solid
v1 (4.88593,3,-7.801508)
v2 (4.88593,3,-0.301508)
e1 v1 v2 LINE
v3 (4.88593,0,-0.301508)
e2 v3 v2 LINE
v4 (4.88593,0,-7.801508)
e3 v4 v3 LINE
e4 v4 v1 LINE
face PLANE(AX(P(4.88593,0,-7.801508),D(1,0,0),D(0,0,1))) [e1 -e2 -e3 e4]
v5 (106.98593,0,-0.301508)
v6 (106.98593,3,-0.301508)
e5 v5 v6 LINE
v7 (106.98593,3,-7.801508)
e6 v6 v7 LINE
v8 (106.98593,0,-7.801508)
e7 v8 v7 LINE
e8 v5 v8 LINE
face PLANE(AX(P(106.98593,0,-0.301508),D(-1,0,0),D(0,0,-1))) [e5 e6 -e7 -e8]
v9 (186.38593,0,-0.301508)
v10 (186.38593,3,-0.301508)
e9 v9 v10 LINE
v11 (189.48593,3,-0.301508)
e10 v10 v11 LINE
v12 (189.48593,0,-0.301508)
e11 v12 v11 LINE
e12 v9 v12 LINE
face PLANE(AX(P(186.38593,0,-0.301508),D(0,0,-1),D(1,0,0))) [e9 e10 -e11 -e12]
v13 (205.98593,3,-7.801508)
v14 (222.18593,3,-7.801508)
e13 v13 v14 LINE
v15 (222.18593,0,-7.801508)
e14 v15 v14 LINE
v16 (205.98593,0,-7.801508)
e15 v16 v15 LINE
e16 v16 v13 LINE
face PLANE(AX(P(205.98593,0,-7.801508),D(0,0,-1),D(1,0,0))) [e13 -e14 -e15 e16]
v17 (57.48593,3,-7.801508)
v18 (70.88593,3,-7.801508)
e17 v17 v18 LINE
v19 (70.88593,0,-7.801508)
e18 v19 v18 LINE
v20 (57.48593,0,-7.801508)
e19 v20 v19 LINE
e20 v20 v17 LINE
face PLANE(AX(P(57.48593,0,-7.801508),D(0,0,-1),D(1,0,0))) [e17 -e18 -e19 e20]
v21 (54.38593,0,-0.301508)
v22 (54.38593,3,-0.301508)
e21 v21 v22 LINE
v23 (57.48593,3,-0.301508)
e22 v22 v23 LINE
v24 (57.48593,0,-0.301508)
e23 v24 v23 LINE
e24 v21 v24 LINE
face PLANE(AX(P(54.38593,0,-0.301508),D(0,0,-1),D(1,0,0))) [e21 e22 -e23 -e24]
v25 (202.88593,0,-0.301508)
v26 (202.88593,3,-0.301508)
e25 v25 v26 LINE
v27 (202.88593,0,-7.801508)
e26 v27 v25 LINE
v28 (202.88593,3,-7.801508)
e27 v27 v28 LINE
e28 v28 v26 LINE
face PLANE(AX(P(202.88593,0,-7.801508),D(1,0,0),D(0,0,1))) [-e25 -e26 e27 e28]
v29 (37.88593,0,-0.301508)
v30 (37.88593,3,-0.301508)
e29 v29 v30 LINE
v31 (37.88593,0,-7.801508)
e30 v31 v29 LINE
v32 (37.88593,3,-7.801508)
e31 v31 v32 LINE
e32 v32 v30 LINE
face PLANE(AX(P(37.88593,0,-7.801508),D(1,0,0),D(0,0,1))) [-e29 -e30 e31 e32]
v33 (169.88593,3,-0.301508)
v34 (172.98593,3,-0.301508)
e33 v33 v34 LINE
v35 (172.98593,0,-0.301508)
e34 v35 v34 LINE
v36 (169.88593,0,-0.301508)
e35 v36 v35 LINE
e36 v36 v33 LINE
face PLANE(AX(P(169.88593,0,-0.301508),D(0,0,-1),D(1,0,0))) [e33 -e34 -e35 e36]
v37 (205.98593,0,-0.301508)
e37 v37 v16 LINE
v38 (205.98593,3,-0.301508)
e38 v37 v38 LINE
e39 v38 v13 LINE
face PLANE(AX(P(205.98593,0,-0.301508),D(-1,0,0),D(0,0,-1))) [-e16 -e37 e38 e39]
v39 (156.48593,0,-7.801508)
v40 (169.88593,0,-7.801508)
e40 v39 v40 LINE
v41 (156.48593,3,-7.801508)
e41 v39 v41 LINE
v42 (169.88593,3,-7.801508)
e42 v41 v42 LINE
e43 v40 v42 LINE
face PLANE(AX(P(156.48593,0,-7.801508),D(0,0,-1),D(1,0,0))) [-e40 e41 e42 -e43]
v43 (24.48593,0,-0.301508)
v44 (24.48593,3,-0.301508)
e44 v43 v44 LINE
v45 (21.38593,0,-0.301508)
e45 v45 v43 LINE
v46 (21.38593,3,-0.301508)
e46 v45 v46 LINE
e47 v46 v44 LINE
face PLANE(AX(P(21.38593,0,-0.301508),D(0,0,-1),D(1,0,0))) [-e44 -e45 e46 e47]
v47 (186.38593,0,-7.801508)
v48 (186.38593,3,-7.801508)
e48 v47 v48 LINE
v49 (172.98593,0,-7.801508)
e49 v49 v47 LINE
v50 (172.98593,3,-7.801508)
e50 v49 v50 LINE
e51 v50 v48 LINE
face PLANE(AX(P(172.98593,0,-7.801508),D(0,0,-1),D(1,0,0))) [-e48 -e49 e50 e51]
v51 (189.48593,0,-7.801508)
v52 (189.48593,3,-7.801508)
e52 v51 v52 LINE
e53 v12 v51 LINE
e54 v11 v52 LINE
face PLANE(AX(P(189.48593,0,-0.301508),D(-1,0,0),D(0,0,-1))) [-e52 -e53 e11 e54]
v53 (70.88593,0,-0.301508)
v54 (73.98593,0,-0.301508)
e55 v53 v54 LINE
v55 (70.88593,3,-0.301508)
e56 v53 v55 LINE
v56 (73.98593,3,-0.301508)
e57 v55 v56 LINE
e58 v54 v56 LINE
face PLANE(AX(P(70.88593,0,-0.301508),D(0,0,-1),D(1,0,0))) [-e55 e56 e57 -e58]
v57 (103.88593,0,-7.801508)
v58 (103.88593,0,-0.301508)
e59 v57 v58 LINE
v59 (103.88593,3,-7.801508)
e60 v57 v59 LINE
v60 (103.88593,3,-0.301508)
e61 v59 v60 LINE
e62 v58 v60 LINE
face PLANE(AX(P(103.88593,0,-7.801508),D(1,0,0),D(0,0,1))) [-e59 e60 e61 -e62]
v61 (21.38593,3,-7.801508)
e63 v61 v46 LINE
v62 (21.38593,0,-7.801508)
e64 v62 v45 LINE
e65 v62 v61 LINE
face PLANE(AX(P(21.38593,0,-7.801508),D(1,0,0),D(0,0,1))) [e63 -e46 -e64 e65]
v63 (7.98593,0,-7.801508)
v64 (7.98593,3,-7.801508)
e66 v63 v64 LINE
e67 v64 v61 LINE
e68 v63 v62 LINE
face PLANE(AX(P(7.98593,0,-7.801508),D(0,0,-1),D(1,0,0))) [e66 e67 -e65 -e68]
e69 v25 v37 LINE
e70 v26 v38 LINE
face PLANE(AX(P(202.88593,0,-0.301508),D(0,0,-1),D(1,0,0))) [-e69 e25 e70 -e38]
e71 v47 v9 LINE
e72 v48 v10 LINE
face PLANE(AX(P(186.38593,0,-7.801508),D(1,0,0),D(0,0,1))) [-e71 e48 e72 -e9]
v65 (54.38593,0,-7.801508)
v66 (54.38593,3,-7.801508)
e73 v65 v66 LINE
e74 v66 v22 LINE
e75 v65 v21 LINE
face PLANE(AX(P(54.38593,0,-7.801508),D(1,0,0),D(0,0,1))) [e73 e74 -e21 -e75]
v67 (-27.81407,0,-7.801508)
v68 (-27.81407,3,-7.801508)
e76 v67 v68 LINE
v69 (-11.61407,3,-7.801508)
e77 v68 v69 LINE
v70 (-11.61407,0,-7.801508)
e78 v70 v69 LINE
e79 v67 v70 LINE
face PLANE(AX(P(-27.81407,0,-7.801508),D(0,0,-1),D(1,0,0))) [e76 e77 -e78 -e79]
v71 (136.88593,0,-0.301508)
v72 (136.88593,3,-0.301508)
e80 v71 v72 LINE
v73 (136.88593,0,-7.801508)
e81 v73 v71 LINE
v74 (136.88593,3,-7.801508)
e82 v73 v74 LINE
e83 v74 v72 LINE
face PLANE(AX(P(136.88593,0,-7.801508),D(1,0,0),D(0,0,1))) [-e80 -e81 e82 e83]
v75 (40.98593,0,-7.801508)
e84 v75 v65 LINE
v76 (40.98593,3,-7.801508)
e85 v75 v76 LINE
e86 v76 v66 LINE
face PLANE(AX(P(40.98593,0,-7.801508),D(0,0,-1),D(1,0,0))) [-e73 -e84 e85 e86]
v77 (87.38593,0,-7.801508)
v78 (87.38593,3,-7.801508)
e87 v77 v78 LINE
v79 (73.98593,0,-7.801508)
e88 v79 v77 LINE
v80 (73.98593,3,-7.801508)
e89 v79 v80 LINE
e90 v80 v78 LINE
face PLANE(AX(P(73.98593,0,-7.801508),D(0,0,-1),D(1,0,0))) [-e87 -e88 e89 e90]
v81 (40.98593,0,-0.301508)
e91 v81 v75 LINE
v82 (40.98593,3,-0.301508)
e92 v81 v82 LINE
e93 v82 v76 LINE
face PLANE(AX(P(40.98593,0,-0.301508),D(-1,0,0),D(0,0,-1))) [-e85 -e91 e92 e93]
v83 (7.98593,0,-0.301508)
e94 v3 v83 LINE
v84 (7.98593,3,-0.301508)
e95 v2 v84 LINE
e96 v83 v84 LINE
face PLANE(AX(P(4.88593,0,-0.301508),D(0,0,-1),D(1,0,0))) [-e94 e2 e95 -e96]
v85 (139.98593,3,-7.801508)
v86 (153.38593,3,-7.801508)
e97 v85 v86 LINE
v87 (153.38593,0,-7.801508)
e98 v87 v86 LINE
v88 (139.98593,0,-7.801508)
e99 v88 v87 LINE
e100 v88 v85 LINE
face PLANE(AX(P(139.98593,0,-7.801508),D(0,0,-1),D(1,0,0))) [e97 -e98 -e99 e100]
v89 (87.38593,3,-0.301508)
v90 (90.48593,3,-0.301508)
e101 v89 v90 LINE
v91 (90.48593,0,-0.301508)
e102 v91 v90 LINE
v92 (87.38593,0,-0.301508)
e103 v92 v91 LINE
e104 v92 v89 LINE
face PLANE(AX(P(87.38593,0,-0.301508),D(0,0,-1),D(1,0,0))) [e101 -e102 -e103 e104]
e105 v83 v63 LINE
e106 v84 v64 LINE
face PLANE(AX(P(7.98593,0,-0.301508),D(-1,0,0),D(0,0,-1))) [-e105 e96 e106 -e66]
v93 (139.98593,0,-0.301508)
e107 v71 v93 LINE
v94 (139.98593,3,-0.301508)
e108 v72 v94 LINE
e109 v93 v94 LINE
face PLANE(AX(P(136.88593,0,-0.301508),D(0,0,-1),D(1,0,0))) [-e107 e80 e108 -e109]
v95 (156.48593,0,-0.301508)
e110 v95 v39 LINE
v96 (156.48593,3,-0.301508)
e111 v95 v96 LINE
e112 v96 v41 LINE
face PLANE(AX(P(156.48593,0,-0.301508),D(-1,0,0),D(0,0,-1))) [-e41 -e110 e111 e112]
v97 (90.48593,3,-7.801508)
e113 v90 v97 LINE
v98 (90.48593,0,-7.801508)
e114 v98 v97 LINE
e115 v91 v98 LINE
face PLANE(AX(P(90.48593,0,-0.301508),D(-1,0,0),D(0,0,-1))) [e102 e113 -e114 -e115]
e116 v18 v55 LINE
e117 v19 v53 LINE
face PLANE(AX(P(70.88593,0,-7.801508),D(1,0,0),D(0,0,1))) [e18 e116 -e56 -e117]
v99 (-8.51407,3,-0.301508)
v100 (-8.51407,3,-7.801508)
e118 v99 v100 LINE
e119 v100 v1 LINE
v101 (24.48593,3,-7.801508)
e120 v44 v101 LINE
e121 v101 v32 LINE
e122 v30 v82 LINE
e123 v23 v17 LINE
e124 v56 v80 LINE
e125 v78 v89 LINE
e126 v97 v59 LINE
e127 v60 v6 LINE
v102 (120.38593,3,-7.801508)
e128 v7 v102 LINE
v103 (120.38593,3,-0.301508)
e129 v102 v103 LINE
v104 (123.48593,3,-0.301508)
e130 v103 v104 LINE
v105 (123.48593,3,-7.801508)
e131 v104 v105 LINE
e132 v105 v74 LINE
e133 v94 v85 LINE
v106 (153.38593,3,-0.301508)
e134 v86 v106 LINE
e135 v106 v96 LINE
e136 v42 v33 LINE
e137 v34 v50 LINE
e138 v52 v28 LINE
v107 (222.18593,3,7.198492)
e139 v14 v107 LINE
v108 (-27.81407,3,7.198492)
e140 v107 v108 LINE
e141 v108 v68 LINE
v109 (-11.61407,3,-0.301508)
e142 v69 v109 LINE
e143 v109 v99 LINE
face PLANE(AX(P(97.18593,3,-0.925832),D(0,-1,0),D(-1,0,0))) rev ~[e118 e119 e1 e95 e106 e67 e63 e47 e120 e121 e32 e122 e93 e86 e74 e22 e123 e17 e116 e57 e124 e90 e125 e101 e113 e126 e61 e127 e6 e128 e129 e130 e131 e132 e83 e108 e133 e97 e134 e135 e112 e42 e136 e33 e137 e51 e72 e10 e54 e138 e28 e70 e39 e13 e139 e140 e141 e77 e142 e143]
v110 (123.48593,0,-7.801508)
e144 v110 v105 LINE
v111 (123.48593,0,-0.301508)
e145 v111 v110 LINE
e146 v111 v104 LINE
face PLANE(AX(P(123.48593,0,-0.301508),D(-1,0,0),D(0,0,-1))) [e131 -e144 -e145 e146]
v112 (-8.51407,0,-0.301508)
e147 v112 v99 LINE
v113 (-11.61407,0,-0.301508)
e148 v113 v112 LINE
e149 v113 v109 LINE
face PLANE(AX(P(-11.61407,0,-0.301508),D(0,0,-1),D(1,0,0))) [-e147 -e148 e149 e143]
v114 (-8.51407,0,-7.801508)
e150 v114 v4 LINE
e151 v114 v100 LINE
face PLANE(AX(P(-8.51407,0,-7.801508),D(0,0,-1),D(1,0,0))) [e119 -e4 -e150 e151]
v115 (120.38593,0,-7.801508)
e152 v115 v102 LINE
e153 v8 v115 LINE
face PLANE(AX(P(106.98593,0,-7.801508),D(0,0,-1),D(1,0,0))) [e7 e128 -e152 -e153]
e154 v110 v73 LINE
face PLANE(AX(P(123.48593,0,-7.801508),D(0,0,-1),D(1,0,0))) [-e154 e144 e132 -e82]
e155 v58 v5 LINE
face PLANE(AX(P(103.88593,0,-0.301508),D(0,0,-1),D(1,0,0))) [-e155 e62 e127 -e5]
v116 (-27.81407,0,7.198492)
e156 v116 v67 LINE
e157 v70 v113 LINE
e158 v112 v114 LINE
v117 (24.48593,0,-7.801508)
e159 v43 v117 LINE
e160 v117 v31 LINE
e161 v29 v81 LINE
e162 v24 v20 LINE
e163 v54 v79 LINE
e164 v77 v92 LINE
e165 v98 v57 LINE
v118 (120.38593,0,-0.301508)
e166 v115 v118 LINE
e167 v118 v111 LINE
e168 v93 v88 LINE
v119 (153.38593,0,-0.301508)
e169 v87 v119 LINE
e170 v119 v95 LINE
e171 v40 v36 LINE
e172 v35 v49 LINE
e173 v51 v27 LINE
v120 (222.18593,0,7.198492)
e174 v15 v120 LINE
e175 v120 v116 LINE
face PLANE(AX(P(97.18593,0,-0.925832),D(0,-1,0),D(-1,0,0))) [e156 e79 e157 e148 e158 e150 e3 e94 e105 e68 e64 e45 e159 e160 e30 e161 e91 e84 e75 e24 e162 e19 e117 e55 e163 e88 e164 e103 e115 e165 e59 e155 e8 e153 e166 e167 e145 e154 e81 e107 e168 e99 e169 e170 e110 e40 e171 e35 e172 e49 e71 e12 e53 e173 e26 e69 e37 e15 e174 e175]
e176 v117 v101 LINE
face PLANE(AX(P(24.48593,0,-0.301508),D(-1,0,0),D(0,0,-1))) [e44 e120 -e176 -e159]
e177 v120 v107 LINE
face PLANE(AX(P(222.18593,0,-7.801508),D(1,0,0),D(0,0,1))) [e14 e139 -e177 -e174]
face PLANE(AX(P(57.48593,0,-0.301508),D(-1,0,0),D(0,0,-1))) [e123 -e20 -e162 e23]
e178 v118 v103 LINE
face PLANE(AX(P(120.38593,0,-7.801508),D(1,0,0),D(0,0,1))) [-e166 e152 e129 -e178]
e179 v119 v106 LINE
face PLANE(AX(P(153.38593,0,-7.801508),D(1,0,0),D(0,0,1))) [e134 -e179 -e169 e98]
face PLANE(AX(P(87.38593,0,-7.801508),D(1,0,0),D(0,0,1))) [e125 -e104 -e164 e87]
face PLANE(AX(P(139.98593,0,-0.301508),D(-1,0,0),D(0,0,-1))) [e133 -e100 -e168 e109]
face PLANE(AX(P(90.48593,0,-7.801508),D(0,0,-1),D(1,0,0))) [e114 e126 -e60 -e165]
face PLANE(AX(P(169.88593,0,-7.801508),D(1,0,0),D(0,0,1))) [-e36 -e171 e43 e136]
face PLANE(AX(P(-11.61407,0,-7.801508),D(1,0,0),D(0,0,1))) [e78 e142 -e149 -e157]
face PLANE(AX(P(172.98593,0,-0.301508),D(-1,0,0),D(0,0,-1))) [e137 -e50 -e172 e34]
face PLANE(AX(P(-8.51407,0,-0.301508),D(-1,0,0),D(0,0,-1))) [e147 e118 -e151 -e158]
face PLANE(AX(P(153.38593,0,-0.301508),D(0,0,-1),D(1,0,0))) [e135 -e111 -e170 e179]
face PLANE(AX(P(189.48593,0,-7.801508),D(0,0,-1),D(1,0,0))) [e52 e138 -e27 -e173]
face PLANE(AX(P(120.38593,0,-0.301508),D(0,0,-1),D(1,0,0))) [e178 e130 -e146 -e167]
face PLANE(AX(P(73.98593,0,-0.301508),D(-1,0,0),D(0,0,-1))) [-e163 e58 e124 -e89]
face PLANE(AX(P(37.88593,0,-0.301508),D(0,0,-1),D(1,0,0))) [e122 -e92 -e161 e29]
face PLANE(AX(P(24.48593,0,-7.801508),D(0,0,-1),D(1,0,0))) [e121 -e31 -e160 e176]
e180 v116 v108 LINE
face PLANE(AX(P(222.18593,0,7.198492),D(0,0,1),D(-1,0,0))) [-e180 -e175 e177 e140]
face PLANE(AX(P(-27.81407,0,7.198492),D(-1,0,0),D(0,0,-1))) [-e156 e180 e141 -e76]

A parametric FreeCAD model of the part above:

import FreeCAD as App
import Part
import Sketcher
Q = App.Units.Quantity


def add_polygon(sketch, points):
    """Adds a closed chain of lines whose ends are joined by coincident constraints."""
    first, n = sketch.GeometryCount, len(points)
    for a, b in zip(points, points[1:] + points[:1]):
        sketch.addGeometry(Part.LineSegment(App.Vector(*a, 0), App.Vector(*b, 0)), False)
    for i in range(n):
        sketch.addConstraint(Sketcher.Constraint("Coincident", first + i, 2, first + (i + 1) % n, 1))

doc = App.newDocument("Part")
params = doc.addObject("Spreadsheet::Sheet", "Params")
for row, (alias, value) in enumerate([
    ("sketch1_width", "250 mm"),
    ("sketch1_height", "15 mm"),
    ("sketch1_width2", "13.4 mm"),
    ("sketch1_width3", "3.1 mm"),
    ("sketch1_height2", "7.5 mm"),
    ("pad1_length", "3 mm"),
], start=1):
    params.set(f"A{row}", alias)
    params.set(f"B{row}", "=" + value)
    params.setAlias(f"B{row}", alias)

body = doc.addObject("PartDesign::Body", "Body")

# Sketch on XZ plane
sketch1 = body.newObject("Sketcher::SketchObject", "Sketch")
sketch1.AttachmentSupport = (doc.getObject("XZ_Plane"), [""])
sketch1.MapMode = "FlatFace"
add_polygon(sketch1, [(4.88593, -0.301508), (4.88593, -7.801508), (-8.51407, -7.801508), (-8.51407, -0.301508), (-11.61407, -0.301508), (-11.61407, -7.801508), (-27.81407, -7.801508), (-27.81407, 7.198492), (222.18593, 7.198492), (222.18593, -7.801508), (205.98593, -7.801508), (205.98593, -0.301508), (202.88593, -0.301508), (202.88593, -7.801508), (189.48593, -7.801508), (189.48593, -0.301508), (186.38593, -0.301508), (186.38593, -7.801508), (172.98593, -7.801508), (172.98593, -0.301508), (169.88593, -0.301508), (169.88593, -7.801508), (156.48593, -7.801508), (156.48593, -0.301508), (153.38593, -0.301508), (153.38593, -7.801508), (139.98593, -7.801508), (139.98593, -0.301508), (136.88593, -0.301508), (136.88593, -7.801508), (123.48593, -7.801508), (123.48593, -0.301508), (120.38593, -0.301508), (120.38593, -7.801508), (106.98593, -7.801508), (106.98593, -0.301508), (103.88593, -0.301508), (103.88593, -7.801508), (90.48593, -7.801508), (90.48593, -0.301508), (87.38593, -0.301508), (87.38593, -7.801508), (73.98593, -7.801508), (73.98593, -0.301508), (70.88593, -0.301508), (70.88593, -7.801508), (57.48593, -7.801508), (57.48593, -0.301508), (54.38593, -0.301508), (54.38593, -7.801508), (40.98593, -7.801508), (40.98593, -0.301508), (37.88593, -0.301508), (37.88593, -7.801508), (24.48593, -7.801508), (24.48593, -0.301508), (21.38593, -0.301508), (21.38593, -7.801508), (7.98593, -7.801508), (7.98593, -0.301508)])  # lines 0-59
sketch1.addConstraint([
    Sketcher.Constraint("Vertical", 0),
    Sketcher.Constraint("Horizontal", 1),
    Sketcher.Constraint("Vertical", 2),
    Sketcher.Constraint("Horizontal", 3),
    Sketcher.Constraint("Vertical", 4),
    Sketcher.Constraint("Horizontal", 5),
    Sketcher.Constraint("Vertical", 6),
    Sketcher.Constraint("Horizontal", 7),
    Sketcher.Constraint("Vertical", 8),
    Sketcher.Constraint("Horizontal", 9),
    Sketcher.Constraint("Vertical", 10),
    Sketcher.Constraint("Horizontal", 11),
    Sketcher.Constraint("Vertical", 12),
    Sketcher.Constraint("Horizontal", 13),
    Sketcher.Constraint("Vertical", 14),
    Sketcher.Constraint("Horizontal", 15),
    Sketcher.Constraint("Vertical", 16),
    Sketcher.Constraint("Horizontal", 17),
    Sketcher.Constraint("Vertical", 18),
    Sketcher.Constraint("Horizontal", 19),
    Sketcher.Constraint("Vertical", 20),
    Sketcher.Constraint("Horizontal", 21),
    Sketcher.Constraint("Vertical", 22),
    Sketcher.Constraint("Horizontal", 23),
    Sketcher.Constraint("Vertical", 24),
    Sketcher.Constraint("Horizontal", 25),
    Sketcher.Constraint("Vertical", 26),
    Sketcher.Constraint("Horizontal", 27),
    Sketcher.Constraint("Vertical", 28),
    Sketcher.Constraint("Horizontal", 29),
    Sketcher.Constraint("Vertical", 30),
    Sketcher.Constraint("Horizontal", 31),
    Sketcher.Constraint("Vertical", 32),
    Sketcher.Constraint("Horizontal", 33),
    Sketcher.Constraint("Vertical", 34),
    Sketcher.Constraint("Horizontal", 35),
    Sketcher.Constraint("Vertical", 36),
    Sketcher.Constraint("Horizontal", 37),
    Sketcher.Constraint("Vertical", 38),
    Sketcher.Constraint("Horizontal", 39),
    Sketcher.Constraint("Vertical", 40),
    Sketcher.Constraint("Horizontal", 41),
    Sketcher.Constraint("Vertical", 42),
    Sketcher.Constraint("Horizontal", 43),
    Sketcher.Constraint("Vertical", 44),
    Sketcher.Constraint("Horizontal", 45),
    Sketcher.Constraint("Vertical", 46),
    Sketcher.Constraint("Horizontal", 47),
    Sketcher.Constraint("Vertical", 48),
    Sketcher.Constraint("Horizontal", 49),
    Sketcher.Constraint("Vertical", 50),
    Sketcher.Constraint("Horizontal", 51),
    Sketcher.Constraint("Vertical", 52),
    Sketcher.Constraint("Horizontal", 53),
    Sketcher.Constraint("Vertical", 54),
    Sketcher.Constraint("Horizontal", 55),
    Sketcher.Constraint("Vertical", 56),
    Sketcher.Constraint("Horizontal", 57),
    Sketcher.Constraint("Vertical", 58),
    Sketcher.Constraint("Horizontal", 59),
    Sketcher.Constraint("Horizontal", 1, 2, 4, 2),
    Sketcher.Constraint("Horizontal", 5, 2, 8, 2),
    Sketcher.Constraint("Horizontal", 3, 2, 10, 2),
    Sketcher.Constraint("Horizontal", 9, 2, 12, 2),
    Sketcher.Constraint("Horizontal", 11, 2, 14, 2),
    Sketcher.Constraint("Horizontal", 13, 2, 16, 2),
    Sketcher.Constraint("Horizontal", 15, 2, 18, 2),
    Sketcher.Constraint("Horizontal", 17, 2, 20, 2),
    Sketcher.Constraint("Horizontal", 19, 2, 22, 2),
    Sketcher.Constraint("Horizontal", 21, 2, 24, 2),
    Sketcher.Constraint("Horizontal", 23, 2, 26, 2),
    Sketcher.Constraint("Horizontal", 25, 2, 28, 2),
    Sketcher.Constraint("Horizontal", 27, 2, 30, 2),
    Sketcher.Constraint("Horizontal", 29, 2, 32, 2),
    Sketcher.Constraint("Horizontal", 31, 2, 34, 2),
    Sketcher.Constraint("Horizontal", 33, 2, 36, 2),
    Sketcher.Constraint("Horizontal", 35, 2, 38, 2),
    Sketcher.Constraint("Horizontal", 37, 2, 40, 2),
    Sketcher.Constraint("Horizontal", 39, 2, 42, 2),
    Sketcher.Constraint("Horizontal", 41, 2, 44, 2),
    Sketcher.Constraint("Horizontal", 43, 2, 46, 2),
    Sketcher.Constraint("Horizontal", 45, 2, 48, 2),
    Sketcher.Constraint("Horizontal", 47, 2, 50, 2),
    Sketcher.Constraint("Horizontal", 49, 2, 52, 2),
    Sketcher.Constraint("Horizontal", 51, 2, 54, 2),
    Sketcher.Constraint("Horizontal", 53, 2, 56, 2),
    Sketcher.Constraint("Horizontal", 55, 2, 58, 2),
    Sketcher.Constraint("Equal", 5, 9),
    Sketcher.Constraint("Equal", 3, 11),
    Sketcher.Constraint("Equal", 1, 13),
    Sketcher.Constraint("Equal", 11, 15),
    Sketcher.Constraint("Equal", 13, 17),
    Sketcher.Constraint("Equal", 15, 19),
    Sketcher.Constraint("Equal", 17, 21),
    Sketcher.Constraint("Equal", 19, 23),
    Sketcher.Constraint("Equal", 21, 25),
    Sketcher.Constraint("Equal", 23, 27),
    Sketcher.Constraint("Equal", 25, 29),
    Sketcher.Constraint("Equal", 27, 31),
    Sketcher.Constraint("Equal", 29, 33),
    Sketcher.Constraint("Equal", 31, 35),
    Sketcher.Constraint("Equal", 33, 37),
    Sketcher.Constraint("Equal", 35, 39),
    Sketcher.Constraint("Equal", 37, 41),
    Sketcher.Constraint("Equal", 39, 43),
    Sketcher.Constraint("Equal", 41, 45),
    Sketcher.Constraint("Equal", 43, 47),
    Sketcher.Constraint("Equal", 45, 49),
    Sketcher.Constraint("Equal", 47, 51),
    Sketcher.Constraint("Equal", 49, 53),
    Sketcher.Constraint("Equal", 51, 55),
    Sketcher.Constraint("Equal", 53, 57),
    Sketcher.Constraint("Equal", 55, 59),
    Sketcher.Constraint("DistanceX", 7, 1, 7, 2, Q("250 mm")),
    Sketcher.Constraint("DistanceY", 6, 1, 6, 2, Q("15 mm")),
    Sketcher.Constraint("DistanceX", 1, 2, 1, 1, Q("13.4 mm")),
    Sketcher.Constraint("DistanceX", 3, 2, 3, 1, Q("3.1 mm")),
    Sketcher.Constraint("DistanceY", 0, 2, 0, 1, Q("7.5 mm")),
    Sketcher.Constraint("DistanceX", -1, 1, 0, 2, Q("4.88593 mm")),
    Sketcher.Constraint("DistanceY", 0, 2, -1, 1, Q("7.801508 mm")),
])
sketch1.setExpression("Constraints[173]", "Params.sketch1_width")
sketch1.setExpression("Constraints[174]", "Params.sketch1_height")
sketch1.setExpression("Constraints[175]", "Params.sketch1_width2")
sketch1.setExpression("Constraints[176]", "Params.sketch1_width3")
sketch1.setExpression("Constraints[177]", "Params.sketch1_height2")
pad1 = body.newObject("PartDesign::Pad", "Pad")
pad1.Profile = sketch1
pad1.setExpression("Length", "Params.pad1_length")
pad1.Reversed = True

doc.recompute()
